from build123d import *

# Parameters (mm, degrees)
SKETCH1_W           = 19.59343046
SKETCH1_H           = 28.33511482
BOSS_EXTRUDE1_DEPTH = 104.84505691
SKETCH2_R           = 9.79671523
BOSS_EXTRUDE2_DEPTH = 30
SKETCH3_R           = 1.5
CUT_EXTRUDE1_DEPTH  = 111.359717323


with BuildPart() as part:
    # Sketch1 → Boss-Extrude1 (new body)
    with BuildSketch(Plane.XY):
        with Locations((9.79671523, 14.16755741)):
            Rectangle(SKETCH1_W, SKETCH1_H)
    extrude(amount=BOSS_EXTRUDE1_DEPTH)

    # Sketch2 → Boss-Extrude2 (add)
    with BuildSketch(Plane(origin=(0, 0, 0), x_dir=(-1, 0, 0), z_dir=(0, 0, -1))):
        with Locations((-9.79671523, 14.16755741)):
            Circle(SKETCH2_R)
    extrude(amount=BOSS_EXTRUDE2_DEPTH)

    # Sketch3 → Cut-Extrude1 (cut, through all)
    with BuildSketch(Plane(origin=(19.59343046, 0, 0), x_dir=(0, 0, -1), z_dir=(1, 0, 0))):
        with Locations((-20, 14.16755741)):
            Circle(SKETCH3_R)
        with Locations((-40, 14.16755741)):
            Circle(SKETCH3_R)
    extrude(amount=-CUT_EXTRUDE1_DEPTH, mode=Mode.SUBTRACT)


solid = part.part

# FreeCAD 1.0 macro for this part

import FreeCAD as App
import Part
import Sketcher

V = App.Vector
Q = App.Units.Quantity

doc = App.newDocument("Part")
params = doc.addObject("Spreadsheet::Sheet", "Params")
for row, (alias, value) in enumerate([
    ("pad1_length", "104.845057 mm"),
    ("pad2_length", "30 mm"),
    ("sketch3_diameter", "3 mm"),
], start=1):
    params.set(f"A{row}", alias)
    params.set(f"B{row}", "=" + value)
    params.setAlias(f"B{row}", alias)

body = doc.addObject("PartDesign::Body", "Body")

sketch1 = body.newObject("Sketcher::SketchObject", "Sketch")
sketch1.AttachmentSupport = (doc.getObject("XY_Plane"), [""])
sketch1.MapMode = "FlatFace"
sketch1.addGeometry(Part.LineSegment(V(0, 28.335115, 0), V(0, 0, 0)), False)
sketch1.addGeometry(Part.LineSegment(V(0, 0, 0), V(19.59343, 0, 0)), False)
sketch1.addGeometry(Part.LineSegment(V(19.59343, 0, 0), V(19.59343, 28.335115, 0)), False)
sketch1.addGeometry(Part.LineSegment(V(19.59343, 28.335115, 0), V(0, 28.335115, 0)), False)
sketch1.addConstraint(Sketcher.Constraint("Coincident", 0, 2, 1, 1))
sketch1.addConstraint(Sketcher.Constraint("Coincident", 1, 2, 2, 1))
sketch1.addConstraint(Sketcher.Constraint("Coincident", 2, 2, 3, 1))
sketch1.addConstraint(Sketcher.Constraint("Coincident", 3, 2, 0, 1))
sketch1.addConstraint(Sketcher.Constraint("Vertical", 0))
sketch1.addConstraint(Sketcher.Constraint("Horizontal", 1))
sketch1.addConstraint(Sketcher.Constraint("Vertical", 2))
sketch1.addConstraint(Sketcher.Constraint("Horizontal", 3))
sketch1.addConstraint(Sketcher.Constraint("Coincident", 0, 2, -1, 1))
sketch1.addConstraint(Sketcher.Constraint("DistanceX", 1, 1, 1, 2, Q("19.59343 mm")))
sketch1.addConstraint(Sketcher.Constraint("DistanceY", 0, 2, 0, 1, Q("28.335115 mm")))
pad1 = body.newObject("PartDesign::Pad", "Pad")
pad1.Profile = sketch1
pad1.setExpression("Length", "Params.pad1_length")

sketch2 = body.newObject("Sketcher::SketchObject", "Sketch001")
sketch2.AttachmentSupport = (doc.getObject("XY_Plane"), [""])
sketch2.MapMode = "FlatFace"
sketch2.addGeometry(Part.Circle(V(9.796715, 14.167557, 0), V(0, 0, 1), 9.796715), False)
sketch2.addConstraint(Sketcher.Constraint("Diameter", 0, Q("19.59343 mm")))
sketch2.addConstraint(Sketcher.Constraint("DistanceX", -1, 1, 0, 3, Q("9.796715 mm")))
sketch2.addConstraint(Sketcher.Constraint("DistanceY", -1, 1, 0, 3, Q("14.167557 mm")))
pad2 = body.newObject("PartDesign::Pad", "Pad001")
pad2.Profile = sketch2
pad2.setExpression("Length", "Params.pad2_length")
pad2.Reversed = True

sketch3 = body.newObject("Sketcher::SketchObject", "Sketch002")
sketch3.AttachmentSupport = (doc.getObject("YZ_Plane"), [""])
sketch3.MapMode = "FlatFace"
sketch3.AttachmentOffset = App.Placement(V(0, 0, 19.59343), App.Rotation())
sketch3.addGeometry(Part.Circle(V(14.167557, 20, 0), V(0, 0, 1), 1.5), False)
sketch3.addGeometry(Part.Circle(V(14.167557, 40, 0), V(0, 0, 1), 1.5), False)
sketch3.addConstraint(Sketcher.Constraint("Equal", 0, 1))
sketch3.addConstraint(Sketcher.Constraint("Vertical", 0, 3, 1, 3))
sketch3.addConstraint(Sketcher.Constraint("Diameter", 0, Q("3 mm")))
sketch3.addConstraint(Sketcher.Constraint("DistanceY", -1, 1, 0, 3, Q("20 mm")))
sketch3.addConstraint(Sketcher.Constraint("DistanceY", -1, 1, 1, 3, Q("40 mm")))
sketch3.addConstraint(Sketcher.Constraint("DistanceX", -1, 1, 0, 3, Q("14.167557 mm")))
sketch3.setExpression("Constraints[2]", "Params.sketch3_diameter")
pocket1 = body.newObject("PartDesign::Pocket", "Pocket")
pocket1.Profile = sketch3
pocket1.Type = "ThroughAll"

doc.recompute()
